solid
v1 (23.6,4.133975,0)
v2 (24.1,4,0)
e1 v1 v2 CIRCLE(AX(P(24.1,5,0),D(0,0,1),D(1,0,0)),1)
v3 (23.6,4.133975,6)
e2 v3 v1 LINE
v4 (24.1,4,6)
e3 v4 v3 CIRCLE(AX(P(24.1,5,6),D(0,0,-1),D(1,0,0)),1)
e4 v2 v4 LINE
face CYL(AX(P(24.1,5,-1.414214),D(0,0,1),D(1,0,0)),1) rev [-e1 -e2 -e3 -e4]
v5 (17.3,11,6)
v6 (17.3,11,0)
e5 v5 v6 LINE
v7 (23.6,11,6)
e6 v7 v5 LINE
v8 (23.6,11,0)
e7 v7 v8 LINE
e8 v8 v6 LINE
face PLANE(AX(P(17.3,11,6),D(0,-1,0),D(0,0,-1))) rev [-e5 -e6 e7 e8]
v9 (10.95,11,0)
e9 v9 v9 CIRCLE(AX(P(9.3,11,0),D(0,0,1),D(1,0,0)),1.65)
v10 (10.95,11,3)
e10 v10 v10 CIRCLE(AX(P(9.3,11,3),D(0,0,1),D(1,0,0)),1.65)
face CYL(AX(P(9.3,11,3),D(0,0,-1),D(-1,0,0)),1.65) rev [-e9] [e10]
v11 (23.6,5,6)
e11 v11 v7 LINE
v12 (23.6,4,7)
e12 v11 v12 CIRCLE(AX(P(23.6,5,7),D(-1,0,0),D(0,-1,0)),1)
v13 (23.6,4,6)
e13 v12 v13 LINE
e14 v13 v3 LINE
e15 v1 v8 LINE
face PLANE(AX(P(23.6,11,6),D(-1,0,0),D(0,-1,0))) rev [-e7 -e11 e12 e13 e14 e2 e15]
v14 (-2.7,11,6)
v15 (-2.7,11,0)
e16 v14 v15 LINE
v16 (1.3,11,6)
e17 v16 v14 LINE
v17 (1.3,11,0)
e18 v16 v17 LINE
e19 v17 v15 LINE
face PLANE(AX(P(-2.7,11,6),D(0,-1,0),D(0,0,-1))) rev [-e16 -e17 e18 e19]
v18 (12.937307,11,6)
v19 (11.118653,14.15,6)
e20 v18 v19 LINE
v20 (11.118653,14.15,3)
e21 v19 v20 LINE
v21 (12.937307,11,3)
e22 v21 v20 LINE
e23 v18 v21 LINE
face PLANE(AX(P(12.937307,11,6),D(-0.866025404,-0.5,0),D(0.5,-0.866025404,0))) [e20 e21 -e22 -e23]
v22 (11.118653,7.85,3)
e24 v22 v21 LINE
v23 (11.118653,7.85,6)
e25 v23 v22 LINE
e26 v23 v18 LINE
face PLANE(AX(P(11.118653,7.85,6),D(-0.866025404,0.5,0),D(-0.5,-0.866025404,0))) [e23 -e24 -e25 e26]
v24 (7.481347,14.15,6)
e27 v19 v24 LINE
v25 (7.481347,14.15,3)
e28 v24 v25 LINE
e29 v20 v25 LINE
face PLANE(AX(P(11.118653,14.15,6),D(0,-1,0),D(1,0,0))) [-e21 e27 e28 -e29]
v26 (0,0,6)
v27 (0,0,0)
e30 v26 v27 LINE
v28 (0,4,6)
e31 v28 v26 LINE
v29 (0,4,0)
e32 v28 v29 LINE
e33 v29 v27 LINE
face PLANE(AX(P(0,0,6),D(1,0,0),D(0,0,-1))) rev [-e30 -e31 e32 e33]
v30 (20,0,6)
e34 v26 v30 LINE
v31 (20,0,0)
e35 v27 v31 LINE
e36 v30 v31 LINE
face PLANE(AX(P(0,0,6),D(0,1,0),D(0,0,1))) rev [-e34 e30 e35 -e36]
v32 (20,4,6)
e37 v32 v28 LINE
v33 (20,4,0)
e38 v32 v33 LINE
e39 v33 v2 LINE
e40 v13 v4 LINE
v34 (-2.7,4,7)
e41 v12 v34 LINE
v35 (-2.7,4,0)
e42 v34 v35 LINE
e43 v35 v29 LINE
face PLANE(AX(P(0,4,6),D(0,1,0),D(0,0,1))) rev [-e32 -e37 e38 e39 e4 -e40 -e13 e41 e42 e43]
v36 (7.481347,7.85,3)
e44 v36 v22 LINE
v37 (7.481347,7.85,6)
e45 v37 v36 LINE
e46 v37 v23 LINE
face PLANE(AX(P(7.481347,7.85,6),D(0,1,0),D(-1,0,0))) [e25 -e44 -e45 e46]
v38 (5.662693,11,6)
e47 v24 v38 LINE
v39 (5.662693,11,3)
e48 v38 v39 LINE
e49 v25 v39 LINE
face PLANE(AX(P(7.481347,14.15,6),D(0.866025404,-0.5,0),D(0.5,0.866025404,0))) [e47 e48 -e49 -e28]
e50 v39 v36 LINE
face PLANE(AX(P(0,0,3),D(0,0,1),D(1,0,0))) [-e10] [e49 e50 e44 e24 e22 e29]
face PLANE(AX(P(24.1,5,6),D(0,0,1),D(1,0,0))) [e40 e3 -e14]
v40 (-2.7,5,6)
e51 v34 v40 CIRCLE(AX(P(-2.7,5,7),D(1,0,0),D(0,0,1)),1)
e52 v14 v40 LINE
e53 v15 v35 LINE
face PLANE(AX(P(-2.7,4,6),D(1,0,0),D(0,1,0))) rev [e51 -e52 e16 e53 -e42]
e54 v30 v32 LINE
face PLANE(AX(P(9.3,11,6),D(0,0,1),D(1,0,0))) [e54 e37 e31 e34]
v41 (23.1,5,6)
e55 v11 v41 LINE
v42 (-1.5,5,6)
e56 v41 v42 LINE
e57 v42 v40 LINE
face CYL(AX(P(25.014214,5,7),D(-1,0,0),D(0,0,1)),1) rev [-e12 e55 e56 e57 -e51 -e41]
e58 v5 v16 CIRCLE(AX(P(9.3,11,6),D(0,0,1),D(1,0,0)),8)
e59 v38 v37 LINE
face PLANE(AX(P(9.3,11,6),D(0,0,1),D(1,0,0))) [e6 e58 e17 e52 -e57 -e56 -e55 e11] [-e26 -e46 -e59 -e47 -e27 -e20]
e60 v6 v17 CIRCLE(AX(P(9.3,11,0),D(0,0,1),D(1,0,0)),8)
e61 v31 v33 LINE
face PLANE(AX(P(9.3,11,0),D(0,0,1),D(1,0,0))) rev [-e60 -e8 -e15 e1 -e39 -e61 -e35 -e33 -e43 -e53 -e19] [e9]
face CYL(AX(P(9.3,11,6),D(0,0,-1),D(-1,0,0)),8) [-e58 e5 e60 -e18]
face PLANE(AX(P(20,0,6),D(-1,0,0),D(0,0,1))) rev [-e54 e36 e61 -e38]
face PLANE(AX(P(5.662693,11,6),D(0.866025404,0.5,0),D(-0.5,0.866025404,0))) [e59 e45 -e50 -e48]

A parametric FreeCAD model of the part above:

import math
import FreeCAD as App
import Part
import Sketcher
Q = App.Units.Quantity

doc = App.newDocument("Part")
body = doc.addObject("PartDesign::Body", "Body")

# Sketch on XY plane
sketch1 = body.newObject("Sketcher::SketchObject", "Sketch")
sketch1.AttachmentSupport = (doc.getObject("XY_Plane"), [""])
sketch1.MapMode = "FlatFace"
sketch1.addGeometry([
    Part.LineSegment(App.Vector(0, 0, 0), App.Vector(20, 0, 0)),  # 0
    Part.LineSegment(App.Vector(20, 0, 0), App.Vector(20, 4, 0)),  # 1
    Part.LineSegment(App.Vector(20, 4, 0), App.Vector(23.6, 4, 0)),  # 2
    Part.LineSegment(App.Vector(23.6, 4, 0), App.Vector(23.6, 11, 0)),  # 3
    Part.LineSegment(App.Vector(23.6, 11, 0), App.Vector(17.3, 11, 0)),  # 4
    Part.ArcOfCircle(Part.Circle(App.Vector(9.3, 11, 0), App.Vector(0, 0, 1), 8), math.radians(0), math.radians(180)),  # 5
    Part.LineSegment(App.Vector(1.3, 11, 0), App.Vector(-2.7, 11, 0)),  # 6
    Part.LineSegment(App.Vector(-2.7, 11, 0), App.Vector(-2.7, 4, 0)),  # 7
    Part.LineSegment(App.Vector(-2.7, 4, 0), App.Vector(0, 4, 0)),  # 8
    Part.LineSegment(App.Vector(0, 4, 0), App.Vector(0, 0, 0)),  # 9
    Part.LineSegment(App.Vector(7.5, 14.2, 0), App.Vector(11.1, 14.2, 0)),  # 10
    Part.LineSegment(App.Vector(11.1, 14.2, 0), App.Vector(12.9, 11, 0)),  # 11
    Part.LineSegment(App.Vector(12.9, 11, 0), App.Vector(11.1, 7.8, 0)),  # 12
    Part.LineSegment(App.Vector(11.1, 7.8, 0), App.Vector(7.5, 7.8, 0)),  # 13
    Part.LineSegment(App.Vector(7.5, 7.8, 0), App.Vector(5.7, 11, 0)),  # 14
    Part.LineSegment(App.Vector(5.7, 11, 0), App.Vector(7.5, 14.2, 0)),  # 15
], False)
sketch1.addConstraint([
    Sketcher.Constraint("Coincident", 0, 2, 1, 1),
    Sketcher.Constraint("Coincident", 1, 2, 2, 1),
    Sketcher.Constraint("Coincident", 2, 2, 3, 1),
    Sketcher.Constraint("Coincident", 3, 2, 4, 1),
    Sketcher.Constraint("Coincident", 4, 2, 5, 1),
    Sketcher.Constraint("Coincident", 5, 2, 6, 1),
    Sketcher.Constraint("Coincident", 6, 2, 7, 1),
    Sketcher.Constraint("Coincident", 7, 2, 8, 1),
    Sketcher.Constraint("Coincident", 8, 2, 9, 1),
    Sketcher.Constraint("Coincident", 9, 2, 0, 1),
    Sketcher.Constraint("Coincident", 10, 2, 11, 1),
    Sketcher.Constraint("Coincident", 11, 2, 12, 1),
    Sketcher.Constraint("Coincident", 12, 2, 13, 1),
    Sketcher.Constraint("Coincident", 13, 2, 14, 1),
    Sketcher.Constraint("Coincident", 14, 2, 15, 1),
    Sketcher.Constraint("Coincident", 15, 2, 10, 1),
    Sketcher.Constraint("Horizontal", 0),
    Sketcher.Constraint("Vertical", 1),
    Sketcher.Constraint("Horizontal", 2),
    Sketcher.Constraint("Vertical", 3),
    Sketcher.Constraint("Horizontal", 4),
    Sketcher.Constraint("Horizontal", 6),
    Sketcher.Constraint("Vertical", 7),
    Sketcher.Constraint("Horizontal", 8),
    Sketcher.Constraint("Vertical", 9),
    Sketcher.Constraint("Horizontal", 10),
    Sketcher.Constraint("Horizontal", 13),
    Sketcher.Constraint("Coincident", 9, 2, -1, 1),
    Sketcher.Constraint("Parallel", 11, 14),
    Sketcher.Constraint("Parallel", 12, 15),
    Sketcher.Constraint("Horizontal", 5, 3, 3, 2),
    Sketcher.Constraint("Horizontal", 4, 2, 5, 2),
    Sketcher.Constraint("Horizontal", 2, 2, 7, 2),
    Sketcher.Constraint("Horizontal", 6, 2, 11, 2),
    Sketcher.Constraint("Horizontal", 11, 2, 14, 2),
    Sketcher.Constraint("Vertical", 10, 2, 12, 2),
    Sketcher.Constraint("Vertical", 13, 2, 15, 2),
    Sketcher.Constraint("Equal", 6, 1),
    Sketcher.Constraint("Radius", 5, Q("8 mm")),
    Sketcher.Constraint("DistanceX", 0, 1, 0, 2, Q("20 mm")),
    Sketcher.Constraint("DistanceX", 6, 2, 6, 1, Q("4 mm")),
    Sketcher.Constraint("DistanceY", 3, 1, 3, 2, Q("7 mm")),
    Sketcher.Constraint("Angle", 11, Q("-60 deg")),
    Sketcher.Constraint("DistanceX", 2, 1, 2, 2, Q("3.6 mm")),
    Sketcher.Constraint("DistanceX", 4, 2, 4, 1, Q("6.3 mm")),
    Sketcher.Constraint("DistanceY", 12, 2, 10, 2, Q("6.3 mm")),
    Sketcher.Constraint("DistanceX", 10, 1, 10, 2, Q("3.637307 mm")),
    Sketcher.Constraint("DistanceX", -1, 1, 10, 2, Q("11.118653 mm")),
])
pad1 = body.newObject("PartDesign::Pad", "Pad")
pad1.Profile = sketch1
pad1.Length = 6

# Sketch on YZ plane
sketch2 = body.newObject("Sketcher::SketchObject", "Sketch001")
sketch2.AttachmentSupport = (doc.getObject("YZ_Plane"), [""])
sketch2.MapMode = "FlatFace"
sketch2.AttachmentOffset = App.Placement(App.Vector(0, 0, -2.7), App.Rotation())
sketch2.addGeometry([
    Part.LineSegment(App.Vector(5, 6, 0), App.Vector(4, 6, 0)),
    Part.LineSegment(App.Vector(4, 6, 0), App.Vector(4, 7, 0)),
    Part.ArcOfCircle(Part.Circle(App.Vector(5, 7, 0), App.Vector(0, 0, 1), 1), math.radians(-180), math.radians(-90)),
], False)
sketch2.addConstraint([
    Sketcher.Constraint("Coincident", 0, 2, 1, 1),
    Sketcher.Constraint("Tangent", 1, 2, 2, 1),
    Sketcher.Constraint("Tangent", 2, 2, 0, 1),
    Sketcher.Constraint("Horizontal", 0),
    Sketcher.Constraint("Vertical", 1),
    Sketcher.Constraint("Radius", 2, Q("1 mm")),
    Sketcher.Constraint("DistanceX", -1, 1, 2, 3, Q("5 mm")),
    Sketcher.Constraint("DistanceY", -1, 1, 2, 3, Q("7 mm")),
])
pad2 = body.newObject("PartDesign::Pad", "Pad001")
pad2.Profile = sketch2
pad2.Length = 26.3

# Sketch on XY plane
sketch3 = body.newObject("Sketcher::SketchObject", "Sketch002")
sketch3.AttachmentSupport = (doc.getObject("XY_Plane"), [""])
sketch3.MapMode = "FlatFace"
sketch3.AttachmentOffset = App.Placement(App.Vector(0, 0, 6), App.Rotation())
sketch3.addGeometry([
    Part.LineSegment(App.Vector(23.1, 5, 0), App.Vector(23.1, 4, 0)),  # 0
    Part.LineSegment(App.Vector(23.1, 4, 0), App.Vector(24.1, 4, 0)),  # 1
    Part.ArcOfCircle(Part.Circle(App.Vector(24.1, 5, 0), App.Vector(0, 0, 1), 1), math.radians(-180), math.radians(-90)),  # 2
    Part.LineSegment(App.Vector(-2.5, 4, 0), App.Vector(-1.5, 4, 0)),  # 3
    Part.LineSegment(App.Vector(-1.5, 4, 0), App.Vector(-1.5, 5, 0)),  # 4
    Part.ArcOfCircle(Part.Circle(App.Vector(-2.5, 5, 0), App.Vector(0, 0, 1), 1), math.radians(-90), math.radians(0)),  # 5
], False)
sketch3.addConstraint([
    Sketcher.Constraint("Coincident", 0, 2, 1, 1),
    Sketcher.Constraint("Tangent", 1, 2, 2, 2),
    Sketcher.Constraint("Tangent", 2, 1, 0, 1),
    Sketcher.Constraint("Coincident", 3, 2, 4, 1),
    Sketcher.Constraint("Tangent", 4, 2, 5, 2),
    Sketcher.Constraint("Tangent", 5, 1, 3, 1),
    Sketcher.Constraint("Vertical", 0),
    Sketcher.Constraint("Horizontal", 1),
    Sketcher.Constraint("Horizontal", 3),
    Sketcher.Constraint("Vertical", 4),
    Sketcher.Constraint("Equal", 2, 5),
    Sketcher.Constraint("Horizontal", 2, 3, 5, 3),
    Sketcher.Constraint("Radius", 2, Q("1 mm")),
    Sketcher.Constraint("DistanceY", -1, 1, 2, 3, Q("5 mm")),
    Sketcher.Constraint("DistanceX", -1, 1, 2, 3, Q("24.1 mm")),
    Sketcher.Constraint("DistanceX", 5, 3, -1, 1, Q("2.5 mm")),
])
pad3 = body.newObject("PartDesign::Pad", "Pad002")
pad3.Profile = sketch3
pad3.Length = 6
pad3.Reversed = True

# Sketch on XY plane
sketch4 = body.newObject("Sketcher::SketchObject", "Sketch003")
sketch4.AttachmentSupport = (doc.getObject("XY_Plane"), [""])
sketch4.MapMode = "FlatFace"
sketch4.addGeometry([
    Part.LineSegment(App.Vector(7.5, 14.2, 0), App.Vector(5.7, 11, 0)),  # 0
    Part.LineSegment(App.Vector(5.7, 11, 0), App.Vector(7.5, 7.8, 0)),  # 1
    Part.LineSegment(App.Vector(7.5, 7.8, 0), App.Vector(11.1, 7.8, 0)),  # 2
    Part.LineSegment(App.Vector(11.1, 7.8, 0), App.Vector(12.9, 11, 0)),  # 3
    Part.LineSegment(App.Vector(12.9, 11, 0), App.Vector(11.1, 14.2, 0)),  # 4
    Part.LineSegment(App.Vector(11.1, 14.2, 0), App.Vector(7.5, 14.2, 0)),  # 5
    Part.Circle(App.Vector(9.3, 11, 0), App.Vector(0, 0, 1), 1.6),  # 6
], False)
sketch4.addConstraint([
    Sketcher.Constraint("Coincident", 0, 2, 1, 1),
    Sketcher.Constraint("Coincident", 1, 2, 2, 1),
    Sketcher.Constraint("Coincident", 2, 2, 3, 1),
    Sketcher.Constraint("Coincident", 3, 2, 4, 1),
    Sketcher.Constraint("Coincident", 4, 2, 5, 1),
    Sketcher.Constraint("Coincident", 5, 2, 0, 1),
    Sketcher.Constraint("Horizontal", 2),
    Sketcher.Constraint("Horizontal", 5),
    Sketcher.Constraint("Parallel", 0, 3),
    Sketcher.Constraint("Parallel", 1, 4),
    Sketcher.Constraint("Horizontal", 6, 3, 0, 2),
    Sketcher.Constraint("Horizontal", 0, 2, 3, 2),
    Sketcher.Constraint("Vertical", 2, 2, 4, 2),
    Sketcher.Constraint("Vertical", 1, 2, 5, 2),
    Sketcher.Constraint("Diameter", 6, Q("3.3 mm")),
    Sketcher.Constraint("Angle", 0, Q("-120 deg")),
    Sketcher.Constraint("DistanceY", -1, 1, 6, 3, Q("11 mm")),
    Sketcher.Constraint("DistanceX", -1, 1, 6, 3, Q("9.3 mm")),
    Sketcher.Constraint("DistanceY", 2, 2, 4, 2, Q("6.3 mm")),
    Sketcher.Constraint("DistanceX", 2, 1, 2, 2, Q("3.637307 mm")),
    Sketcher.Constraint("DistanceX", -1, 1, 0, 2, Q("5.662693 mm")),
])
pad4 = body.newObject("PartDesign::Pad", "Pad003")
pad4.Profile = sketch4
pad4.Length = 3

doc.recompute()
